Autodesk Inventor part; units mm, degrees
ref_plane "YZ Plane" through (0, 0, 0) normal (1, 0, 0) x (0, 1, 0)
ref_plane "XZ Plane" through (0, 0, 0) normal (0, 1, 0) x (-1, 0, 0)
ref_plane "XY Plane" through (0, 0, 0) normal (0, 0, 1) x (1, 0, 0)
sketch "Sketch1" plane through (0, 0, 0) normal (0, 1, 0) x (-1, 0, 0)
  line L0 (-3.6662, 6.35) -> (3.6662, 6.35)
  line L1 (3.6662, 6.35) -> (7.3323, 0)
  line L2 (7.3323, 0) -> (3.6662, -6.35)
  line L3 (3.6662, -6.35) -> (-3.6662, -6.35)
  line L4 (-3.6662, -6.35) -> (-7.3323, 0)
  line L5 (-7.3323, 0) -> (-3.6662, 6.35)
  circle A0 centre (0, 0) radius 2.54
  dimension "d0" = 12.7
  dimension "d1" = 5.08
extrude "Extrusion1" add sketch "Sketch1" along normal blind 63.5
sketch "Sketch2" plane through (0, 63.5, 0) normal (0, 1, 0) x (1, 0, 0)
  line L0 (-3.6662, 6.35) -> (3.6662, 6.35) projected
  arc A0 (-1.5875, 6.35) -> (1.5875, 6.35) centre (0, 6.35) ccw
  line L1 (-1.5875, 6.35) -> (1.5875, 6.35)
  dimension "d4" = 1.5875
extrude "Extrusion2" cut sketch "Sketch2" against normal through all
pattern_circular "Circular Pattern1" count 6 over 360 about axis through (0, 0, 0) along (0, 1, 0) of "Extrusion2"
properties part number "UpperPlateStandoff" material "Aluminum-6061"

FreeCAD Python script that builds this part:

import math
import FreeCAD as App
import Part
import Sketcher

V = App.Vector
Q = App.Units.Quantity

doc = App.newDocument("Part")
body = doc.addObject("PartDesign::Body", "Body")

sketch1 = body.newObject("Sketcher::SketchObject", "Sketch")
sketch1.AttachmentSupport = (doc.getObject("XZ_Plane"), [""])
sketch1.MapMode = "FlatFace"
sketch1.addGeometry([
    Part.LineSegment(V(-3.7, 6.3, 0), V(3.7, 6.3, 0)),
    Part.LineSegment(V(3.7, 6.3, 0), V(7.3, 0, 0)),
    Part.LineSegment(V(7.3, 0, 0), V(3.7, -6.3, 0)),
    Part.LineSegment(V(3.7, -6.3, 0), V(-3.7, -6.3, 0)),
    Part.LineSegment(V(-3.7, -6.3, 0), V(-7.3, 0, 0)),
    Part.LineSegment(V(-7.3, 0, 0), V(-3.7, 6.3, 0)),
    Part.Circle(V(0, 0, 0), V(0, 0, 1), 2.5),
], False)
sketch1.addConstraint([
    Sketcher.Constraint("Coincident", 0, 2, 1, 1),
    Sketcher.Constraint("Coincident", 1, 2, 2, 1),
    Sketcher.Constraint("Coincident", 2, 2, 3, 1),
    Sketcher.Constraint("Coincident", 3, 2, 4, 1),
    Sketcher.Constraint("Coincident", 4, 2, 5, 1),
    Sketcher.Constraint("Coincident", 5, 2, 0, 1),
    Sketcher.Constraint("Horizontal", 0),
    Sketcher.Constraint("Horizontal", 3),
    Sketcher.Constraint("Coincident", 6, 3, -1, 1),
    Sketcher.Constraint("Symmetric", 0, 2, 3, 2, -1, 1),
    Sketcher.Constraint("Symmetric", 1, 2, 4, 2, -1, 1),
    Sketcher.Constraint("PointOnObject", 1, 2, -1),
    Sketcher.Constraint("Parallel", 2, 5),
    Sketcher.Constraint("Vertical", 0, 2, 2, 2),
    Sketcher.Constraint("Diameter", 6, Q("0.2 in")),
    Sketcher.Constraint("DistanceY", 2, 2, 0, 2, Q("0.5 in")),
    Sketcher.Constraint("Angle", 1, Q("-60.0005 deg")),
    Sketcher.Constraint("DistanceX", 3, 2, 1, 2, Q("0.433 in")),
])
pad1 = body.newObject("PartDesign::Pad", "Pad")
pad1.Profile = sketch1
pad1.Length = Q("2.5 in")
pad1.Reversed = True

sketch2 = body.newObject("Sketcher::SketchObject", "Sketch001")
sketch2.AttachmentSupport = (doc.getObject("XZ_Plane"), [""])
sketch2.MapMode = "FlatFace"
sketch2.AttachmentOffset = App.Placement(V(0, 0, -2.5 * 25.4), App.Rotation())
sketch2.addGeometry([
    Part.LineSegment(V(1.6, -6.3, 0), V(-1.6, -6.3, 0)),
    Part.ArcOfCircle(Part.Circle(V(0, -6.3, 0), V(0, 0, 1), 1.6), math.radians(0), math.radians(180)),
], False)
sketch2.addConstraint([
    Sketcher.Constraint("Coincident", 0, 1, 1, 1),
    Sketcher.Constraint("Coincident", 1, 2, 0, 2),
    Sketcher.Constraint("Horizontal", 0),
    Sketcher.Constraint("PointOnObject", 1, 3, -2),
    Sketcher.Constraint("Horizontal", 1, 3, 0, 1),
    Sketcher.Constraint("Radius", 1, Q("0.0625 in")),
    Sketcher.Constraint("DistanceY", 1, 3, -1, 1, Q("0.25 in")),
])
pocket1 = body.newObject("PartDesign::Pocket", "Pocket")
pocket1.Profile = sketch2
pocket1.Type = "ThroughAll"
pocket1.Reversed = True
doc.recompute()

polarpattern = body.newObject("PartDesign::PolarPattern", "PolarPattern")
polarpattern.Originals = [pocket1]
polarpattern.Axis = (doc.getObject("Y_Axis"), [""])
polarpattern.Angle = 360
polarpattern.Occurrences = 6
body.Tip = polarpattern

doc.recompute()
